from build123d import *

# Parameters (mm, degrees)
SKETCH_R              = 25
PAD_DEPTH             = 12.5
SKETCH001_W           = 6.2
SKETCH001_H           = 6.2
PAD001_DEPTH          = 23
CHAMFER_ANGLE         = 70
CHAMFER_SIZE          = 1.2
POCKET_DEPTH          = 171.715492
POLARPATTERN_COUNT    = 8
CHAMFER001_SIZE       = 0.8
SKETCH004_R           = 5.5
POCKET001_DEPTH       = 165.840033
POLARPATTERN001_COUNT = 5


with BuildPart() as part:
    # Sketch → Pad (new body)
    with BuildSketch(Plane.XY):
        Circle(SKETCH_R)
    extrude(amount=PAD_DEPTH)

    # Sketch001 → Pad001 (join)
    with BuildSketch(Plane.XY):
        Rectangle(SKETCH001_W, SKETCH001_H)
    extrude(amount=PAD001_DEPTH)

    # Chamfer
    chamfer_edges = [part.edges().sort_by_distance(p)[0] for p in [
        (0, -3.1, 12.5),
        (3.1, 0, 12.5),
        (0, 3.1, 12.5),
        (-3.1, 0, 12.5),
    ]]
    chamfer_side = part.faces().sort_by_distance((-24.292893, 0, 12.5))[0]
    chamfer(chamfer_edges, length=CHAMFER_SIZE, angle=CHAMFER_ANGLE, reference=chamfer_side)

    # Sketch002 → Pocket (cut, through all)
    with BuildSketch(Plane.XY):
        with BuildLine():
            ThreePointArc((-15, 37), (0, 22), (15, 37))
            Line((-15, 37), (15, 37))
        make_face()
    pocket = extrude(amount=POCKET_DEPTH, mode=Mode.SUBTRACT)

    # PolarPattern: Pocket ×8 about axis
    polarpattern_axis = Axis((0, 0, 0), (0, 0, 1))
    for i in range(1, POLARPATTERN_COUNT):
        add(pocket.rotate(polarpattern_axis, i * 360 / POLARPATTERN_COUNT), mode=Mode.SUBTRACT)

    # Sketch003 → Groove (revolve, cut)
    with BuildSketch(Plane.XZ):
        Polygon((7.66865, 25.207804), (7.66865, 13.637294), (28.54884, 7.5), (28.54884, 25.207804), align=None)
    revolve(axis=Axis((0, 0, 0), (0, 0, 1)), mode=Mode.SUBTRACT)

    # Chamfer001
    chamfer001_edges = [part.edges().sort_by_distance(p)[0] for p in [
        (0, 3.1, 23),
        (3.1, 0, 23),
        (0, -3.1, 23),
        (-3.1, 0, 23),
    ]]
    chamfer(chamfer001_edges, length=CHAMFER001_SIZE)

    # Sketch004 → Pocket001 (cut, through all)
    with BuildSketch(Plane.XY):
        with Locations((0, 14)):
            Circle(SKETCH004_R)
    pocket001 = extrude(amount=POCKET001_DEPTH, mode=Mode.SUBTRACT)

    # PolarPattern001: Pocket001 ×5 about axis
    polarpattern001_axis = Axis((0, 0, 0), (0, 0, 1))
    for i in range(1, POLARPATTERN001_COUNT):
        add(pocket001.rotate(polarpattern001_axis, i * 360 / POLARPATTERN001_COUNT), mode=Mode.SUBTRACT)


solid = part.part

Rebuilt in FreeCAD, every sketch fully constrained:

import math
import FreeCAD as App
import Part
import Sketcher

V = App.Vector
Q = App.Units.Quantity


def edges_at(feature, points):
    """Names of the edges that pass closest to the given points."""
    edges = feature.Shape.Edges
    near = lambda p: min(range(len(edges)), key=lambda i: edges[i].distToShape(Part.Vertex(*p))[0])
    return sorted({f"Edge{near(p) + 1}" for p in points})

doc = App.newDocument("Part")
params = doc.addObject("Spreadsheet::Sheet", "Params")
for row, (alias, value) in enumerate([
    ("sketch1_diameter", "50 mm"),
    ("pad1_length", "12.5 mm"),
    ("sketch2_width", "6.2 mm"),
    ("pad2_length", "23 mm"),
    ("chamfer_size", "1.2 mm"),
    ("sketch3_radius", "15 mm"),
    ("groove_angle", "360 deg"),
    ("chamfer2_size", "0.8 mm"),
    ("sketch5_diameter", "11 mm"),
], start=1):
    params.set(f"A{row}", alias)
    params.set(f"B{row}", "=" + value)
    params.setAlias(f"B{row}", alias)

body = doc.addObject("PartDesign::Body", "Body")

sketch1 = body.newObject("Sketcher::SketchObject", "Sketch")
sketch1.AttachmentSupport = (doc.getObject("XY_Plane"), [""])
sketch1.MapMode = "FlatFace"
sketch1.addGeometry(Part.Circle(V(0, 0, 0), V(0, 0, 1), 25), False)
sketch1.addConstraint([
    Sketcher.Constraint("Coincident", 0, 3, -1, 1),
    Sketcher.Constraint("Diameter", 0, Q("50 mm")),
])
sketch1.setExpression("Constraints[1]", "Params.sketch1_diameter")
pad1 = body.newObject("PartDesign::Pad", "Pad")
pad1.Profile = sketch1
pad1.setExpression("Length", "Params.pad1_length")

sketch2 = body.newObject("Sketcher::SketchObject", "Sketch001")
sketch2.AttachmentSupport = (doc.getObject("XY_Plane"), [""])
sketch2.MapMode = "FlatFace"
sketch2.addGeometry([
    Part.LineSegment(V(-3.1, 3.1, 0), V(-3.1, -3.1, 0)),
    Part.LineSegment(V(-3.1, -3.1, 0), V(3.1, -3.1, 0)),
    Part.LineSegment(V(3.1, -3.1, 0), V(3.1, 3.1, 0)),
    Part.LineSegment(V(3.1, 3.1, 0), V(-3.1, 3.1, 0)),
], False)
sketch2.addConstraint([
    Sketcher.Constraint("Coincident", 0, 2, 1, 1),
    Sketcher.Constraint("Coincident", 1, 2, 2, 1),
    Sketcher.Constraint("Coincident", 2, 2, 3, 1),
    Sketcher.Constraint("Coincident", 3, 2, 0, 1),
    Sketcher.Constraint("Vertical", 0),
    Sketcher.Constraint("Horizontal", 1),
    Sketcher.Constraint("Vertical", 2),
    Sketcher.Constraint("Horizontal", 3),
    Sketcher.Constraint("Symmetric", 0, 2, 2, 2, -1, 1),
    Sketcher.Constraint("Equal", 3, 0),
    Sketcher.Constraint("DistanceX", 1, 1, 1, 2, Q("6.2 mm")),
])
sketch2.setExpression("Constraints[10]", "Params.sketch2_width")
pad2 = body.newObject("PartDesign::Pad", "Pad001")
pad2.Profile = sketch2
pad2.setExpression("Length", "Params.pad2_length")
doc.recompute()

chamfer = body.newObject("PartDesign::Chamfer", "Chamfer")
chamfer.Base = (pad2, edges_at(pad2, [
    (0, -3.1, 12.5),
    (3.1, 0, 12.5),
    (0, 3.1, 12.5),
    (-3.1, 0, 12.5),
]))
chamfer.ChamferType = "Distance and Angle"
chamfer.setExpression("Size", "Params.chamfer_size")
chamfer.Angle = 70

sketch3 = body.newObject("Sketcher::SketchObject", "Sketch002")
sketch3.AttachmentSupport = (doc.getObject("XY_Plane"), [""])
sketch3.MapMode = "FlatFace"
sketch3.addGeometry([
    Part.ArcOfCircle(Part.Circle(V(0, 37, 0), V(0, 0, 1), 15), math.radians(180), math.radians(360)),
    Part.LineSegment(V(15, 37, 0), V(-15, 37, 0)),
], False)
sketch3.addConstraint([
    Sketcher.Constraint("Coincident", 0, 1, 1, 2),
    Sketcher.Constraint("Coincident", 1, 1, 0, 2),
    Sketcher.Constraint("Horizontal", 1),
    Sketcher.Constraint("PointOnObject", 0, 3, -2),
    Sketcher.Constraint("Radius", 0, Q("15 mm")),
    Sketcher.Constraint("DistanceY", -1, 1, 0, 3, Q("37 mm")),
    Sketcher.Constraint("DistanceY", -1, 1, 0, 1, Q("37 mm")),
])
sketch3.setExpression("Constraints[4]", "Params.sketch3_radius")
pocket1 = body.newObject("PartDesign::Pocket", "Pocket")
pocket1.Profile = sketch3
pocket1.Type = "ThroughAll"
pocket1.Reversed = True
doc.recompute()

polarpattern = body.newObject("PartDesign::PolarPattern", "PolarPattern")
polarpattern.Originals = [pocket1]
polarpattern.Axis = (doc.getObject("Z_Axis"), [""])
polarpattern.Angle = 360
polarpattern.Occurrences = 8
body.Tip = polarpattern

sketch4 = body.newObject("Sketcher::SketchObject", "Sketch003")
sketch4.AttachmentSupport = (doc.getObject("XZ_Plane"), [""])
sketch4.MapMode = "FlatFace"
sketch4.addGeometry([
    Part.LineSegment(V(7.66865, 25.207804, 0), V(7.66865, 13.637294, 0)),
    Part.LineSegment(V(7.66865, 13.637294, 0), V(28.54884, 7.5, 0)),
    Part.LineSegment(V(28.54884, 7.5, 0), V(28.54884, 25.207804, 0)),
    Part.LineSegment(V(28.54884, 25.207804, 0), V(7.66865, 25.207804, 0)),
], False)
sketch4.addConstraint([
    Sketcher.Constraint("Coincident", 0, 2, 1, 1),
    Sketcher.Constraint("Coincident", 1, 2, 2, 1),
    Sketcher.Constraint("Coincident", 2, 2, 3, 1),
    Sketcher.Constraint("Coincident", 3, 2, 0, 1),
    Sketcher.Constraint("Vertical", 0),
    Sketcher.Constraint("Vertical", 2),
    Sketcher.Constraint("Horizontal", 3),
    Sketcher.Constraint("DistanceY", -1, 1, 1, 2, Q("7.5 mm")),
    Sketcher.Constraint("DistanceX", 3, 2, 3, 1, Q("20.88019 mm")),
    Sketcher.Constraint("DistanceY", 0, 2, 0, 1, Q("11.57051 mm")),
    Sketcher.Constraint("Distance", 1, Q("21.763472 mm")),
    Sketcher.Constraint("DistanceX", -1, 1, 0, 2, Q("7.66865 mm")),
])
groove = body.newObject("PartDesign::Groove", "Groove")
groove.Profile = sketch4
groove.ReferenceAxis = (sketch4, ["V_Axis"])
groove.setExpression("Angle", "Params.groove_angle")
doc.recompute()

chamfer2 = body.newObject("PartDesign::Chamfer", "Chamfer001")
chamfer2.Base = (groove, edges_at(groove, [
    (0, 3.1, 23),
    (3.1, 0, 23),
    (0, -3.1, 23),
    (-3.1, 0, 23),
]))
chamfer2.setExpression("Size", "Params.chamfer2_size")

sketch5 = body.newObject("Sketcher::SketchObject", "Sketch004")
sketch5.AttachmentSupport = (doc.getObject("XY_Plane"), [""])
sketch5.MapMode = "FlatFace"
sketch5.addGeometry(Part.Circle(V(0, 14, 0), V(0, 0, 1), 5.5), False)
sketch5.addConstraint([
    Sketcher.Constraint("PointOnObject", 0, 3, -2),
    Sketcher.Constraint("Diameter", 0, Q("11 mm")),
    Sketcher.Constraint("DistanceY", -1, 1, 0, 3, Q("14 mm")),
])
sketch5.setExpression("Constraints[1]", "Params.sketch5_diameter")
pocket2 = body.newObject("PartDesign::Pocket", "Pocket001")
pocket2.Profile = sketch5
pocket2.Type = "ThroughAll"
pocket2.Reversed = True
doc.recompute()

polarpattern2 = body.newObject("PartDesign::PolarPattern", "PolarPattern001")
polarpattern2.Originals = [pocket2]
polarpattern2.Axis = (doc.getObject("Z_Axis"), [""])
polarpattern2.Angle = 360
polarpattern2.Occurrences = 5
body.Tip = polarpattern2

doc.recompute()
